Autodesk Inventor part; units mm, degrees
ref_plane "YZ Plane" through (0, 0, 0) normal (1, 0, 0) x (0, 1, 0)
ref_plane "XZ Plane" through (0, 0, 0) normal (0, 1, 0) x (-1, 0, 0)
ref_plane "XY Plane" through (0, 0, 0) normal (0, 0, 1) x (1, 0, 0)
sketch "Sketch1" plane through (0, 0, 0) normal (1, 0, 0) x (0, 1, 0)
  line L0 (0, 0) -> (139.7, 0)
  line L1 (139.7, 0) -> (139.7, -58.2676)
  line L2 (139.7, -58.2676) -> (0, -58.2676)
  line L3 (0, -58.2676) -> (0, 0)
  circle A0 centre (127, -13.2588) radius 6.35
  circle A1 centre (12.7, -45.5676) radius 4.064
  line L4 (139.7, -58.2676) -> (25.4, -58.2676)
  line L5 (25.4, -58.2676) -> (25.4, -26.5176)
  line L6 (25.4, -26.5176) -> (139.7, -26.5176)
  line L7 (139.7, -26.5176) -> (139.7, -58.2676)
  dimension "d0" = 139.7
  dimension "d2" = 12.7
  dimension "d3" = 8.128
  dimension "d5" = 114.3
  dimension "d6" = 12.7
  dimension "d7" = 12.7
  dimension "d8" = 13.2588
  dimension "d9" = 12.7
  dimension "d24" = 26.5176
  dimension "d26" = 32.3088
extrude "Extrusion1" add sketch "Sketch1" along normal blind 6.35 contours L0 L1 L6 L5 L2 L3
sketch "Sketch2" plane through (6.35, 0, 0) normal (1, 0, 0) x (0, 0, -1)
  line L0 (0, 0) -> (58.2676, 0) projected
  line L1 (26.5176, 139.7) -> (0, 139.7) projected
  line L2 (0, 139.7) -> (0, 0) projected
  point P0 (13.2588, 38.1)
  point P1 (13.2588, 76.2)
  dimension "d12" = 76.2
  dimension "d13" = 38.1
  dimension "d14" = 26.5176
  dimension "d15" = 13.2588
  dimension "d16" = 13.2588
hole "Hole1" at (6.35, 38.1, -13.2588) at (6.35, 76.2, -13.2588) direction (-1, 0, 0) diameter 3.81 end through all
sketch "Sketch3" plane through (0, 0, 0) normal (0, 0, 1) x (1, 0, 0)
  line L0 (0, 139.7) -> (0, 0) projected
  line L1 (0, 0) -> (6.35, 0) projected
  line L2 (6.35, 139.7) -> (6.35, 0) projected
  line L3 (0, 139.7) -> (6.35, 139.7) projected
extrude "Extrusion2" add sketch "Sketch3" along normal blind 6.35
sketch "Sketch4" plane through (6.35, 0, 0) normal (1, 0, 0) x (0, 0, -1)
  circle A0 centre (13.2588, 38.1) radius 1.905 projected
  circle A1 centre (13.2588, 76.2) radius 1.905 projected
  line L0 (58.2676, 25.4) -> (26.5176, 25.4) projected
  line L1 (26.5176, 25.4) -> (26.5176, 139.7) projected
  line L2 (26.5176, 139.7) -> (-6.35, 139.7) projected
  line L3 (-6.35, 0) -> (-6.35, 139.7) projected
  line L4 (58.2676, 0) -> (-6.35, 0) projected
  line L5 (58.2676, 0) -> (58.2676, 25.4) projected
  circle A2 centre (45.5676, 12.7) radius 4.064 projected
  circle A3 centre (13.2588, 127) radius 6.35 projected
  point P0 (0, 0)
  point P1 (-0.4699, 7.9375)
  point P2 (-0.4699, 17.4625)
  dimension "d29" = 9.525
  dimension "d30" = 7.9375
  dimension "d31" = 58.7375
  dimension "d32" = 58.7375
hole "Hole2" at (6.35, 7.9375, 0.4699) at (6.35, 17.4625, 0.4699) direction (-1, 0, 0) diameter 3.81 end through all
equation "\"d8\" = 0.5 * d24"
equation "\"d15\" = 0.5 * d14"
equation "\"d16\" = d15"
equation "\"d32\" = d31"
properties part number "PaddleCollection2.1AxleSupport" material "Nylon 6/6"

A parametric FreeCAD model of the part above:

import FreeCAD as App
import Part
import Sketcher
from FreeCAD import Vector
Q = App.Units.Quantity

doc = App.newDocument("Part")
params = doc.addObject("Spreadsheet::Sheet", "Params")
for row, (alias, value) in enumerate([
    ("sketch1_diameter", "0.5 in"),
    ("sketch1_diameter2", "0.32 in"),
    ("sketch1_width", "5.5 in"),
    ("sketch1_width2", "4.5 in"),
    ("sketch1_height", "1.044 in"),
    ("pad1_length", "0.25 in"),
    ("sketch2_diameter", "0.15 in"),
    ("hole_diameter", "0.15 in"),
    ("sketch3_height", "5.5 in"),
    ("sketch3_width", "0.25 in"),
    ("pad2_length", "0.25 in"),
    ("sketch4_diameter", "0.15 in"),
    ("hole2_diameter", "0.15 in"),
], start=1):
    params.set(f"A{row}", alias)
    params.set(f"B{row}", "=" + value)
    params.setAlias(f"B{row}", alias)

body = doc.addObject("PartDesign::Body", "Body")

sketch1 = doc.addObject("Sketcher::SketchObject", "Sketch")
body.addObject(sketch1)
sketch1.AttachmentSupport = (doc.YZ_Plane, [""])
sketch1.MapMode = "FlatFace"
sketch1.addGeometry([
    Part.LineSegment(Vector(139.7, 0, 0), Vector(0, 0, 0)),
    Part.LineSegment(Vector(0, 0, 0), Vector(0, -58.3, 0)),
    Part.LineSegment(Vector(0, -58.3, 0), Vector(25.4, -58.3, 0)),
    Part.LineSegment(Vector(25.4, -58.3, 0), Vector(25.4, -26.5, 0)),
    Part.LineSegment(Vector(25.4, -26.5, 0), Vector(139.7, -26.5, 0)),
    Part.LineSegment(Vector(139.7, -26.5, 0), Vector(139.7, 0, 0)),
    Part.Circle(Vector(12.7, -45.6, 0), Vector(0, 0, 1), 4.1),
    Part.Circle(Vector(127, -13.3, 0), Vector(0, 0, 1), 6.3),
], False)
sketch1.addConstraint([
    Sketcher.Constraint("Coincident", 0, 2, 1, 1),
    Sketcher.Constraint("Coincident", 1, 2, 2, 1),
    Sketcher.Constraint("Coincident", 2, 2, 3, 1),
    Sketcher.Constraint("Coincident", 3, 2, 4, 1),
    Sketcher.Constraint("Coincident", 4, 2, 5, 1),
    Sketcher.Constraint("Coincident", 5, 2, 0, 1),
    Sketcher.Constraint("Horizontal", 0),
    Sketcher.Constraint("Vertical", 1),
    Sketcher.Constraint("Horizontal", 2),
    Sketcher.Constraint("Vertical", 3),
    Sketcher.Constraint("Horizontal", 4),
    Sketcher.Constraint("Vertical", 5),
    Sketcher.Constraint("Coincident", 0, 2, -1, 1),
    Sketcher.Constraint("Diameter", 7, Q("0.5 in")),
    Sketcher.Constraint("Diameter", 6, Q("0.32 in")),
    Sketcher.Constraint("DistanceX", 0, 2, 0, 1, Q("5.5 in")),
    Sketcher.Constraint("DistanceX", 4, 1, 4, 2, Q("4.5 in")),
    Sketcher.Constraint("DistanceX", -1, 1, 6, 3, Q("0.5 in")),
    Sketcher.Constraint("DistanceX", 6, 3, 7, 3, Q("4.5 in")),
    Sketcher.Constraint("DistanceY", 1, 2, 6, 3, Q("0.5 in")),
    Sketcher.Constraint("DistanceY", 5, 1, 5, 2, Q("1.044 in")),
    Sketcher.Constraint("DistanceY", 7, 3, -1, 1, Q("0.522 in")),
    Sketcher.Constraint("DistanceY", 6, 3, 7, 3, Q("1.272 in")),
])
sketch1.setExpression("Constraints[13]", "Params.sketch1_diameter")
sketch1.setExpression("Constraints[14]", "Params.sketch1_diameter2")
sketch1.setExpression("Constraints[15]", "Params.sketch1_width")
sketch1.setExpression("Constraints[16]", "Params.sketch1_width2")
sketch1.setExpression("Constraints[20]", "Params.sketch1_height")
pad1 = doc.addObject("PartDesign::Pad", "Pad")
body.addObject(pad1)
pad1.Profile = sketch1
pad1.setExpression("Length", "Params.pad1_length")

sketch2 = doc.addObject("Sketcher::SketchObject", "Sketch001")
body.addObject(sketch2)
sketch2.AttachmentSupport = (doc.YZ_Plane, [""])
sketch2.MapMode = "FlatFace"
sketch2.AttachmentOffset = App.Placement(Vector(0, 0, 0.25 * 25.4), App.Rotation())
sketch2.addGeometry([
    Part.Circle(Vector(38.1, -13.3, 0), Vector(0, 0, 1), 1.9),
    Part.Circle(Vector(76.2, -13.3, 0), Vector(0, 0, 1), 1.9),
], False)
sketch2.addConstraint([
    Sketcher.Constraint("Equal", 0, 1),
    Sketcher.Constraint("Horizontal", 0, 3, 1, 3),
    Sketcher.Constraint("Diameter", 0, Q("0.15 in")),
    Sketcher.Constraint("DistanceX", -1, 1, 1, 3, Q("3 in")),
    Sketcher.Constraint("DistanceX", -1, 1, 0, 3, Q("1.5 in")),
    Sketcher.Constraint("DistanceY", 0, 3, -1, 1, Q("0.522 in")),
])
sketch2.setExpression("Constraints[2]", "Params.sketch2_diameter")
doc.recompute()
hole = doc.addObject("PartDesign::Hole", "Hole")
body.addObject(hole)
hole.Profile = sketch2
hole.ThreadType = "None"
hole.setExpression("Diameter", "Params.hole_diameter")
hole.DepthType = "ThroughAll"

sketch3 = doc.addObject("Sketcher::SketchObject", "Sketch002")
body.addObject(sketch3)
sketch3.AttachmentSupport = (doc.XY_Plane, [""])
sketch3.MapMode = "FlatFace"
sketch3.addGeometry([
    Part.LineSegment(Vector(6, 140, 0), Vector(0, 140, 0)),
    Part.LineSegment(Vector(0, 140, 0), Vector(0, 0, 0)),
    Part.LineSegment(Vector(0, 0, 0), Vector(6, 0, 0)),
    Part.LineSegment(Vector(6, 0, 0), Vector(6, 140, 0)),
], False)
sketch3.addConstraint([
    Sketcher.Constraint("Coincident", 0, 2, 1, 1),
    Sketcher.Constraint("Coincident", 1, 2, 2, 1),
    Sketcher.Constraint("Coincident", 2, 2, 3, 1),
    Sketcher.Constraint("Coincident", 3, 2, 0, 1),
    Sketcher.Constraint("Horizontal", 0),
    Sketcher.Constraint("Vertical", 1),
    Sketcher.Constraint("Horizontal", 2),
    Sketcher.Constraint("Vertical", 3),
    Sketcher.Constraint("Coincident", 1, 2, -1, 1),
    Sketcher.Constraint("DistanceY", 1, 2, 1, 1, Q("5.5 in")),
    Sketcher.Constraint("DistanceX", 0, 2, 0, 1, Q("0.25 in")),
])
sketch3.setExpression("Constraints[9]", "Params.sketch3_height")
sketch3.setExpression("Constraints[10]", "Params.sketch3_width")
pad2 = doc.addObject("PartDesign::Pad", "Pad001")
body.addObject(pad2)
pad2.Profile = sketch3
pad2.setExpression("Length", "Params.pad2_length")

sketch4 = doc.addObject("Sketcher::SketchObject", "Sketch003")
body.addObject(sketch4)
sketch4.AttachmentSupport = (doc.YZ_Plane, [""])
sketch4.MapMode = "FlatFace"
sketch4.AttachmentOffset = App.Placement(Vector(0, 0, 0.25 * 25.4), App.Rotation())
sketch4.addGeometry([
    Part.Circle(Vector(7.9, 0.5, 0), Vector(0, 0, 1), 1.9),
    Part.Circle(Vector(17.5, 0.5, 0), Vector(0, 0, 1), 1.9),
], False)
sketch4.addConstraint([
    Sketcher.Constraint("Equal", 0, 1),
    Sketcher.Constraint("Horizontal", 0, 3, 1, 3),
    Sketcher.Constraint("Diameter", 0, Q("0.15 in")),
    Sketcher.Constraint("DistanceX", -1, 1, 0, 3, Q("0.3125 in")),
    Sketcher.Constraint("DistanceX", -1, 1, 1, 3, Q("0.6875 in")),
    Sketcher.Constraint("DistanceY", -1, 1, 0, 3, Q("0.0185 in")),
])
sketch4.setExpression("Constraints[2]", "Params.sketch4_diameter")
doc.recompute()
hole2 = doc.addObject("PartDesign::Hole", "Hole001")
body.addObject(hole2)
hole2.Profile = sketch4
hole2.ThreadType = "None"
hole2.setExpression("Diameter", "Params.hole2_diameter")
hole2.DepthType = "ThroughAll"

doc.recompute()
